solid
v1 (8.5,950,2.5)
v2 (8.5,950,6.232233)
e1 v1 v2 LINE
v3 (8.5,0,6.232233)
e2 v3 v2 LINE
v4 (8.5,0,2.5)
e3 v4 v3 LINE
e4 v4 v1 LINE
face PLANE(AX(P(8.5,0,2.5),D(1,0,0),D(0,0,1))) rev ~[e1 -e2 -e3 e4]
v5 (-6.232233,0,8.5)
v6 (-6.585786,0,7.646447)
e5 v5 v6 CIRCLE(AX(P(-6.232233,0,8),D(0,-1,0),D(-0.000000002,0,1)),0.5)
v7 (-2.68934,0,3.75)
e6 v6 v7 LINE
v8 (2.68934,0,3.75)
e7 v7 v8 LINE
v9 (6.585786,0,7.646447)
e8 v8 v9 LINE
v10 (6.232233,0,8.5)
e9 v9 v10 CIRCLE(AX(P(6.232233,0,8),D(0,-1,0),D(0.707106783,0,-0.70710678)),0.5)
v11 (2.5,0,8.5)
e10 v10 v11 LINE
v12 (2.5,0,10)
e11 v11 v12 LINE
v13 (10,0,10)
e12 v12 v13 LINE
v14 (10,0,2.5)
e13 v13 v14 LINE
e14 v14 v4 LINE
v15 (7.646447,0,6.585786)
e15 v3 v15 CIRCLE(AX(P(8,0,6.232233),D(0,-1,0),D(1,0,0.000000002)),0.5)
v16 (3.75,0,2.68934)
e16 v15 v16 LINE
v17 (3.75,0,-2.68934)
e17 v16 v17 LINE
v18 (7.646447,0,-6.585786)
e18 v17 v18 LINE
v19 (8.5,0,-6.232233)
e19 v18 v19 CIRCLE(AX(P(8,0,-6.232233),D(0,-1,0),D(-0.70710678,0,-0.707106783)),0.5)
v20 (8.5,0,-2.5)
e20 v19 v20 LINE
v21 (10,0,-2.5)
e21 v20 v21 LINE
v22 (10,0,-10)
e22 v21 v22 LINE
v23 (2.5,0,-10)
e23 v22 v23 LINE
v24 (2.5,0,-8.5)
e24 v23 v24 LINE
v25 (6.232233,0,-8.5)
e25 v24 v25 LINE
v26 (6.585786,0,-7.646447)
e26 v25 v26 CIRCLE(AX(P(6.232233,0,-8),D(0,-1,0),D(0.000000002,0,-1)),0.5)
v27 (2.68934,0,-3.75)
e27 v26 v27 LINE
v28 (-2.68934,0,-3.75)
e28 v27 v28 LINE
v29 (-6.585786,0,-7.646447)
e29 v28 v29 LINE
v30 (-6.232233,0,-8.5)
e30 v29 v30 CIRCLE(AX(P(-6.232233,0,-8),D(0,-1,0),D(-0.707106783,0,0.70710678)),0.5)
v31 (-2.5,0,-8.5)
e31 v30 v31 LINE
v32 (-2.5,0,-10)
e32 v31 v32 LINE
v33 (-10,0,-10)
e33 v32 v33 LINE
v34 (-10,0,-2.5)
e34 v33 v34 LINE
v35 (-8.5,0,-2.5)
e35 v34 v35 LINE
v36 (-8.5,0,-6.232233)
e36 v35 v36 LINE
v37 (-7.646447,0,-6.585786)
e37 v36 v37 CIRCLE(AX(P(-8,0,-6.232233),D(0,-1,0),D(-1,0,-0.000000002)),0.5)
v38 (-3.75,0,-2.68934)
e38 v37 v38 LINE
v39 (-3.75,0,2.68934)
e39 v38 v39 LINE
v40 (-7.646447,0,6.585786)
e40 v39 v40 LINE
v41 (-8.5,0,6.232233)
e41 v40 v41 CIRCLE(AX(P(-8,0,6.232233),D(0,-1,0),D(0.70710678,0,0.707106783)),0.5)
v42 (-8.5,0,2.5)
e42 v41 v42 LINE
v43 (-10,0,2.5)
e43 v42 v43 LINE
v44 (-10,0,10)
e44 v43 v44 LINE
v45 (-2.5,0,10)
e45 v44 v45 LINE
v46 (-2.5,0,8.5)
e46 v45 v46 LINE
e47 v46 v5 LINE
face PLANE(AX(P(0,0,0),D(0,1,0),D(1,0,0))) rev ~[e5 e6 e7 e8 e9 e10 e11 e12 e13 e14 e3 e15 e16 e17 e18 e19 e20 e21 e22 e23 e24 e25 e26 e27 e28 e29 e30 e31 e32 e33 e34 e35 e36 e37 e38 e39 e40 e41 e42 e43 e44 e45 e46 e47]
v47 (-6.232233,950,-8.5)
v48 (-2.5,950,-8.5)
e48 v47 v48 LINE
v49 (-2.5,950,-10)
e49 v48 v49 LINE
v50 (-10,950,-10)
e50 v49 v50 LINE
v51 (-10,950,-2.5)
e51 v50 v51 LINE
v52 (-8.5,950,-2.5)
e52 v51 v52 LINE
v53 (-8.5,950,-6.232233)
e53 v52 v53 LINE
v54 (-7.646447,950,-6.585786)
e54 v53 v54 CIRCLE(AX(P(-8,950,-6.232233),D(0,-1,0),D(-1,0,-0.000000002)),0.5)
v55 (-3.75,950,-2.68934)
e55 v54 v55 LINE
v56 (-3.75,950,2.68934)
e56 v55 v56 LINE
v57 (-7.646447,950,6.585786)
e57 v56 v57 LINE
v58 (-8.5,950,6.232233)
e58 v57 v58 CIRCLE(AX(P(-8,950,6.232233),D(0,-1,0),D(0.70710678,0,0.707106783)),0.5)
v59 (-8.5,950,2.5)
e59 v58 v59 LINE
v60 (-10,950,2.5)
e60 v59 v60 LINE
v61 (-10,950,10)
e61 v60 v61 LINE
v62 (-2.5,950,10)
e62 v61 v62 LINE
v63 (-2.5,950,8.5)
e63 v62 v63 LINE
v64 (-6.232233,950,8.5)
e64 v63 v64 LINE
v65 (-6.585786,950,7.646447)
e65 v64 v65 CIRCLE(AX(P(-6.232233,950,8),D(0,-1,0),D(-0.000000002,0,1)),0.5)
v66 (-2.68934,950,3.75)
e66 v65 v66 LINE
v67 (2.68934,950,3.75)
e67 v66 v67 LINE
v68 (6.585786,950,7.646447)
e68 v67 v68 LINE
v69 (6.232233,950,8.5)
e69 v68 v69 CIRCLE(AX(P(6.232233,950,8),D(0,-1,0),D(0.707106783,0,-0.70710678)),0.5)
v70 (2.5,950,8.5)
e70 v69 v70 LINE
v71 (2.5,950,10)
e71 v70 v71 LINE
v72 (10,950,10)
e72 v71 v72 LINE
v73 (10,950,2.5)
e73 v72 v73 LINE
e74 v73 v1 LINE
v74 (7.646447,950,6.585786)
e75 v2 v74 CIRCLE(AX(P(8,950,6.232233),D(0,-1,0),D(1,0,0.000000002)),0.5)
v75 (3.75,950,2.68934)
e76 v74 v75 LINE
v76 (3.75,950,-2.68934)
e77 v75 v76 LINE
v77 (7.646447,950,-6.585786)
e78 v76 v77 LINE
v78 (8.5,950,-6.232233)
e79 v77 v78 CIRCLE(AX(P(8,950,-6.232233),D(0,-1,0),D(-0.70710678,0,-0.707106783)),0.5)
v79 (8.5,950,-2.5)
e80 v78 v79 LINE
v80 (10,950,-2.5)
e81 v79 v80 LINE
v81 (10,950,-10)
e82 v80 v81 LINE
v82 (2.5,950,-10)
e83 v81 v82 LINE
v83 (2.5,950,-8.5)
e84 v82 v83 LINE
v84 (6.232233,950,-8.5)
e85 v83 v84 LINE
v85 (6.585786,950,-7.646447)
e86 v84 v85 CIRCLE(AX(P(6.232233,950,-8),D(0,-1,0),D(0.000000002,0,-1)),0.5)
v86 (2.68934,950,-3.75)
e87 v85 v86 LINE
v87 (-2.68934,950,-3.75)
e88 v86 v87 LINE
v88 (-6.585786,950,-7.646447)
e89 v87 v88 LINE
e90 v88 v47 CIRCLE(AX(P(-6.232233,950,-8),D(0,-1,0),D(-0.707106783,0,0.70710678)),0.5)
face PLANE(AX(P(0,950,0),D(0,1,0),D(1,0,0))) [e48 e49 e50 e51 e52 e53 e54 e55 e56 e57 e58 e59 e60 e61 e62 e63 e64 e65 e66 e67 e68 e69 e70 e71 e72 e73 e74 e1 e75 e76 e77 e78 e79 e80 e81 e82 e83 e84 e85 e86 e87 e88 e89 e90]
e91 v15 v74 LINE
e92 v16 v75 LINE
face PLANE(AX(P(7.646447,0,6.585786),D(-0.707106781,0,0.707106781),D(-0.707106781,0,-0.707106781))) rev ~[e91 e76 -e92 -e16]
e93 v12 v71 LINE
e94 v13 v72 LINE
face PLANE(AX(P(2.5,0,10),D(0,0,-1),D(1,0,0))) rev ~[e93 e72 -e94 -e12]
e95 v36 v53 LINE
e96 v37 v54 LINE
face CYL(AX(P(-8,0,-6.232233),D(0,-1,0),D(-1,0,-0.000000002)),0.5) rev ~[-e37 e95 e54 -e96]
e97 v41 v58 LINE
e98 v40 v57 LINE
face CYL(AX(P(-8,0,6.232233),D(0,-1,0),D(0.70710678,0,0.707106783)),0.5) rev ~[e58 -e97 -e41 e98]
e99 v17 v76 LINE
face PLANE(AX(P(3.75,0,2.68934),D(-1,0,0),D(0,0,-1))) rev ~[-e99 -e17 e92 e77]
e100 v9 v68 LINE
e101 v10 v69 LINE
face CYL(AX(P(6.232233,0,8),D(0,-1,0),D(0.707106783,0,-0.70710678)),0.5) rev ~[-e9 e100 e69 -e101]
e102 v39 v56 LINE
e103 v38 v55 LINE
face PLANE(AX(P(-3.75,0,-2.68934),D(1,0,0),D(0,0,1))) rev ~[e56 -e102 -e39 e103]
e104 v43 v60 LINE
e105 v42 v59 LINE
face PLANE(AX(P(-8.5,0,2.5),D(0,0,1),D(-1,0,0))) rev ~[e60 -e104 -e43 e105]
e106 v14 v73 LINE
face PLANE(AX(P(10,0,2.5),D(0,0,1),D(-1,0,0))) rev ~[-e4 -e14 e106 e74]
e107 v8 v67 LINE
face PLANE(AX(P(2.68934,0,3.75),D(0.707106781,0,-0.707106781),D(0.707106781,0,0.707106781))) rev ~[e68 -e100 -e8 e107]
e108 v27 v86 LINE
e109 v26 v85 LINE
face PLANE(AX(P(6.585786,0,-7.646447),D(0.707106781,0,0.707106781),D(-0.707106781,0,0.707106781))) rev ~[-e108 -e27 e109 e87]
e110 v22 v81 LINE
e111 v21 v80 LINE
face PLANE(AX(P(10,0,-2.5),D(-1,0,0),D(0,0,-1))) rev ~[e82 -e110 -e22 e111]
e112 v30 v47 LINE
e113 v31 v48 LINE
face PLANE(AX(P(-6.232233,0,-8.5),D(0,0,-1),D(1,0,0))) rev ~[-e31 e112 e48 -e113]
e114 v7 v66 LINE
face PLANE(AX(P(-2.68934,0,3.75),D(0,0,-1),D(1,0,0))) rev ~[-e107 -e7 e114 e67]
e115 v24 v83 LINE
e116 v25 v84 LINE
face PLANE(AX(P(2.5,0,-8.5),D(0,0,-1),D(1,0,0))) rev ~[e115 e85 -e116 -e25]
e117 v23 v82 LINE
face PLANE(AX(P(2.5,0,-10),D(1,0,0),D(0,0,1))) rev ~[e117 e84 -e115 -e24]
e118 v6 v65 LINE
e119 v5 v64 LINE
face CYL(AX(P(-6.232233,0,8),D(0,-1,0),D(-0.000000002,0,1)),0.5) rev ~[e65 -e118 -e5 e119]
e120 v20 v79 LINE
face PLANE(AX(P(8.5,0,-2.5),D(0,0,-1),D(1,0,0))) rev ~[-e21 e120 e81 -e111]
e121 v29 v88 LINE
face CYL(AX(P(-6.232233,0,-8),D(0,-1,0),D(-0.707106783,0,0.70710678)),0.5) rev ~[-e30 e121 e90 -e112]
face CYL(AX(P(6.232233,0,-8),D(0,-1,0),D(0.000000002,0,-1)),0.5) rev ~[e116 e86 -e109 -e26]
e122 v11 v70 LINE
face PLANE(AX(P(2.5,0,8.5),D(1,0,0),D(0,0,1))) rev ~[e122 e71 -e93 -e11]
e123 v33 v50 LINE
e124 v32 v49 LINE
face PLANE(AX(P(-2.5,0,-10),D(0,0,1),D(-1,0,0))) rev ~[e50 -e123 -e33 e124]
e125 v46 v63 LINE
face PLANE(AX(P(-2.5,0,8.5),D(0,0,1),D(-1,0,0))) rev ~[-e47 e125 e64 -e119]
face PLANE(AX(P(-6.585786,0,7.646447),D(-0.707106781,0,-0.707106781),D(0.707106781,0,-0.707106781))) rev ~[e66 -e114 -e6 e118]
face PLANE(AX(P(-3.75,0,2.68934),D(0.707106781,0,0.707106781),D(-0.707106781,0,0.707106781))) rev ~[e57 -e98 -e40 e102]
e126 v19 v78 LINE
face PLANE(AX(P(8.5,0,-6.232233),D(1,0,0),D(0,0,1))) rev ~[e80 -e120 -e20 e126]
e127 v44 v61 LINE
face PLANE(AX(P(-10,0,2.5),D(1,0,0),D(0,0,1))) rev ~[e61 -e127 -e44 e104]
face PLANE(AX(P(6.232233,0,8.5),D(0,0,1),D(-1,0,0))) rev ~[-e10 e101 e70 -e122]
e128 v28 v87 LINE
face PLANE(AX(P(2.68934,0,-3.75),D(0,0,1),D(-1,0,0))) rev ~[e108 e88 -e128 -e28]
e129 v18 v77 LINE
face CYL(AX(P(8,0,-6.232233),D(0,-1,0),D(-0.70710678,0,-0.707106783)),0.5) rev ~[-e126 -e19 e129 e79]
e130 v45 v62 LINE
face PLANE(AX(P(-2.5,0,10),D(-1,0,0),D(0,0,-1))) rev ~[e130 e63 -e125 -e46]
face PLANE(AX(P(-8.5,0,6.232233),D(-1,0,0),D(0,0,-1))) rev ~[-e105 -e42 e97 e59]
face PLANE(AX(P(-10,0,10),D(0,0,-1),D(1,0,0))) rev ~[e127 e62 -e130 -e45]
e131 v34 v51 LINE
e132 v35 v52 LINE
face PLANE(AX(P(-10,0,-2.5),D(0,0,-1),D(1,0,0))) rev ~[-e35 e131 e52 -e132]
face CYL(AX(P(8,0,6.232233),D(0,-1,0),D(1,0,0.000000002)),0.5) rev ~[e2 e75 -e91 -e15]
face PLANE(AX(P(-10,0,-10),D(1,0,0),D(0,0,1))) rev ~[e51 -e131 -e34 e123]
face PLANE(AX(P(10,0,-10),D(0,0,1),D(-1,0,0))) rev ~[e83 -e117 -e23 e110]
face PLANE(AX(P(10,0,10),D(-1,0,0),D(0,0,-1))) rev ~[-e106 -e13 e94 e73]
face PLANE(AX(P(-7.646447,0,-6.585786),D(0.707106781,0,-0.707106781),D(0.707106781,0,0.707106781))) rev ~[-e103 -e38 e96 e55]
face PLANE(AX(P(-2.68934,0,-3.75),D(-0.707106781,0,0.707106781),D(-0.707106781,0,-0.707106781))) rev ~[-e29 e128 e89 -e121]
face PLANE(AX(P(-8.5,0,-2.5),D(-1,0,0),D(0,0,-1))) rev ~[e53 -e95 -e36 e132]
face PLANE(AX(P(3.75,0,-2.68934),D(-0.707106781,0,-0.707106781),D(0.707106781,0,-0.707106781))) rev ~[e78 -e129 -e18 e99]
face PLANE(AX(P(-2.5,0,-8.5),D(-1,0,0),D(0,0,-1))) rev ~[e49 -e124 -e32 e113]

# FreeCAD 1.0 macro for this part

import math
import FreeCAD as App
import Part
import Sketcher
from FreeCAD import Vector

doc = App.newDocument("Part")
params = doc.addObject("Spreadsheet::Sheet", "Params")
for row, (alias, value) in enumerate([
    ("sketch1_radius", "0.5 mm"),
    ("sketch1_width", "7.5 mm"),
    ("sketch1_width2", "1.5 mm"),
    ("pad1_length", "950 mm"),
], start=1):
    params.set(f"A{row}", alias)
    params.set(f"B{row}", "=" + value)
    params.setAlias(f"B{row}", alias)

body = doc.addObject("PartDesign::Body", "Body")

sketch1 = doc.addObject("Sketcher::SketchObject", "Sketch")
body.addObject(sketch1)
sketch1.AttachmentSupport = (doc.XZ_Plane, [""])
sketch1.MapMode = "FlatFace"
sketch1.addGeometry([
    Part.LineSegment(Vector(-10, 2.5, 0), Vector(-10, 10, 0)),
    Part.LineSegment(Vector(-10, 10, 0), Vector(-2.5, 10, 0)),
    Part.LineSegment(Vector(-2.5, 10, 0), Vector(-2.5, 8.5, 0)),
    Part.LineSegment(Vector(-2.5, 8.5, 0), Vector(-6.2, 8.5, 0)),
    Part.ArcOfCircle(Part.Circle(Vector(-6.2, 8, 0), Vector(0, 0, 1), 0.5), math.radians(90), math.radians(225)),
    Part.LineSegment(Vector(-6.6, 7.6, 0), Vector(-2.7, 3.8, 0)),
    Part.LineSegment(Vector(-2.7, 3.8, 0), Vector(2.7, 3.8, 0)),
    Part.LineSegment(Vector(2.7, 3.8, 0), Vector(6.6, 7.6, 0)),
    Part.ArcOfCircle(Part.Circle(Vector(6.2, 8, 0), Vector(0, 0, 1), 0.5), math.radians(-45), math.radians(90)),
    Part.LineSegment(Vector(6.2, 8.5, 0), Vector(2.5, 8.5, 0)),
    Part.LineSegment(Vector(2.5, 8.5, 0), Vector(2.5, 10, 0)),
    Part.LineSegment(Vector(2.5, 10, 0), Vector(10, 10, 0)),
    Part.LineSegment(Vector(10, 10, 0), Vector(10, 2.5, 0)),
    Part.LineSegment(Vector(10, 2.5, 0), Vector(8.5, 2.5, 0)),
    Part.LineSegment(Vector(8.5, 2.5, 0), Vector(8.5, 6.2, 0)),
    Part.ArcOfCircle(Part.Circle(Vector(8, 6.2, 0), Vector(0, 0, 1), 0.5), math.radians(0), math.radians(135)),
    Part.LineSegment(Vector(7.6, 6.6, 0), Vector(3.8, 2.7, 0)),
    Part.LineSegment(Vector(3.8, 2.7, 0), Vector(3.8, -2.7, 0)),
    Part.LineSegment(Vector(3.8, -2.7, 0), Vector(7.6, -6.6, 0)),
    Part.ArcOfCircle(Part.Circle(Vector(8, -6.2, 0), Vector(0, 0, 1), 0.5), math.radians(-135), math.radians(0)),
    Part.LineSegment(Vector(8.5, -6.2, 0), Vector(8.5, -2.5, 0)),
    Part.LineSegment(Vector(8.5, -2.5, 0), Vector(10, -2.5, 0)),
    Part.LineSegment(Vector(10, -2.5, 0), Vector(10, -10, 0)),
    Part.LineSegment(Vector(10, -10, 0), Vector(2.5, -10, 0)),
    Part.LineSegment(Vector(2.5, -10, 0), Vector(2.5, -8.5, 0)),
    Part.LineSegment(Vector(2.5, -8.5, 0), Vector(6.2, -8.5, 0)),
    Part.ArcOfCircle(Part.Circle(Vector(6.2, -8, 0), Vector(0, 0, 1), 0.5), math.radians(-90), math.radians(45)),
    Part.LineSegment(Vector(6.6, -7.6, 0), Vector(2.7, -3.8, 0)),
    Part.LineSegment(Vector(2.7, -3.8, 0), Vector(-2.7, -3.8, 0)),
    Part.LineSegment(Vector(-2.7, -3.8, 0), Vector(-6.6, -7.6, 0)),
    Part.ArcOfCircle(Part.Circle(Vector(-6.2, -8, 0), Vector(0, 0, 1), 0.5), math.radians(135), math.radians(270)),
    Part.LineSegment(Vector(-6.2, -8.5, 0), Vector(-2.5, -8.5, 0)),
    Part.LineSegment(Vector(-2.5, -8.5, 0), Vector(-2.5, -10, 0)),
    Part.LineSegment(Vector(-2.5, -10, 0), Vector(-10, -10, 0)),
    Part.LineSegment(Vector(-10, -10, 0), Vector(-10, -2.5, 0)),
    Part.LineSegment(Vector(-10, -2.5, 0), Vector(-8.5, -2.5, 0)),
    Part.LineSegment(Vector(-8.5, -2.5, 0), Vector(-8.5, -6.2, 0)),
    Part.ArcOfCircle(Part.Circle(Vector(-8, -6.2, 0), Vector(0, 0, 1), 0.5), math.radians(-180), math.radians(-45)),
    Part.LineSegment(Vector(-7.6, -6.6, 0), Vector(-3.8, -2.7, 0)),
    Part.LineSegment(Vector(-3.8, -2.7, 0), Vector(-3.8, 2.7, 0)),
    Part.LineSegment(Vector(-3.8, 2.7, 0), Vector(-7.6, 6.6, 0)),
    Part.ArcOfCircle(Part.Circle(Vector(-8, 6.2, 0), Vector(0, 0, 1), 0.5), math.radians(45), math.radians(180)),
    Part.LineSegment(Vector(-8.5, 6.2, 0), Vector(-8.5, 2.5, 0)),
    Part.LineSegment(Vector(-8.5, 2.5, 0), Vector(-10, 2.5, 0)),
], False)
sketch1.addConstraint([
    Sketcher.Constraint("Coincident", 0, 2, 1, 1),
    Sketcher.Constraint("Coincident", 1, 2, 2, 1),
    Sketcher.Constraint("Coincident", 2, 2, 3, 1),
    Sketcher.Constraint("Tangent", 3, 2, 4, 1),
    Sketcher.Constraint("Tangent", 4, 2, 5, 1),
    Sketcher.Constraint("Coincident", 5, 2, 6, 1),
    Sketcher.Constraint("Coincident", 6, 2, 7, 1),
    Sketcher.Constraint("Tangent", 7, 2, 8, 1),
    Sketcher.Constraint("Tangent", 8, 2, 9, 1),
    Sketcher.Constraint("Coincident", 9, 2, 10, 1),
    Sketcher.Constraint("Coincident", 10, 2, 11, 1),
    Sketcher.Constraint("Coincident", 11, 2, 12, 1),
    Sketcher.Constraint("Coincident", 12, 2, 13, 1),
    Sketcher.Constraint("Coincident", 13, 2, 14, 1),
    Sketcher.Constraint("Tangent", 14, 2, 15, 1),
    Sketcher.Constraint("Tangent", 15, 2, 16, 1),
    Sketcher.Constraint("Coincident", 16, 2, 17, 1),
    Sketcher.Constraint("Coincident", 17, 2, 18, 1),
    Sketcher.Constraint("Tangent", 18, 2, 19, 1),
    Sketcher.Constraint("Tangent", 19, 2, 20, 1),
    Sketcher.Constraint("Coincident", 20, 2, 21, 1),
    Sketcher.Constraint("Coincident", 21, 2, 22, 1),
    Sketcher.Constraint("Coincident", 22, 2, 23, 1),
    Sketcher.Constraint("Coincident", 23, 2, 24, 1),
    Sketcher.Constraint("Coincident", 24, 2, 25, 1),
    Sketcher.Constraint("Tangent", 25, 2, 26, 1),
    Sketcher.Constraint("Tangent", 26, 2, 27, 1),
    Sketcher.Constraint("Coincident", 27, 2, 28, 1),
    Sketcher.Constraint("Coincident", 28, 2, 29, 1),
    Sketcher.Constraint("Tangent", 29, 2, 30, 1),
    Sketcher.Constraint("Tangent", 30, 2, 31, 1),
    Sketcher.Constraint("Coincident", 31, 2, 32, 1),
    Sketcher.Constraint("Coincident", 32, 2, 33, 1),
    Sketcher.Constraint("Coincident", 33, 2, 34, 1),
    Sketcher.Constraint("Coincident", 34, 2, 35, 1),
    Sketcher.Constraint("Coincident", 35, 2, 36, 1),
    Sketcher.Constraint("Tangent", 36, 2, 37, 1),
    Sketcher.Constraint("Tangent", 37, 2, 38, 1),
    Sketcher.Constraint("Coincident", 38, 2, 39, 1),
    Sketcher.Constraint("Coincident", 39, 2, 40, 1),
    Sketcher.Constraint("Tangent", 40, 2, 41, 1),
    Sketcher.Constraint("Tangent", 41, 2, 42, 1),
    Sketcher.Constraint("Coincident", 42, 2, 43, 1),
    Sketcher.Constraint("Coincident", 43, 2, 0, 1),
    Sketcher.Constraint("Vertical", 0),
    Sketcher.Constraint("Horizontal", 1),
    Sketcher.Constraint("Vertical", 2),
    Sketcher.Constraint("Horizontal", 3),
    Sketcher.Constraint("Horizontal", 6),
    Sketcher.Constraint("Horizontal", 9),
    Sketcher.Constraint("Vertical", 10),
    Sketcher.Constraint("Horizontal", 11),
    Sketcher.Constraint("Vertical", 12),
    Sketcher.Constraint("Horizontal", 13),
    Sketcher.Constraint("Vertical", 14),
    Sketcher.Constraint("Vertical", 17),
    Sketcher.Constraint("Vertical", 20),
    Sketcher.Constraint("Horizontal", 21),
    Sketcher.Constraint("Vertical", 22),
    Sketcher.Constraint("Horizontal", 23),
    Sketcher.Constraint("Vertical", 24),
    Sketcher.Constraint("Horizontal", 25),
    Sketcher.Constraint("Horizontal", 28),
    Sketcher.Constraint("Horizontal", 31),
    Sketcher.Constraint("Vertical", 32),
    Sketcher.Constraint("Horizontal", 33),
    Sketcher.Constraint("Vertical", 34),
    Sketcher.Constraint("Horizontal", 35),
    Sketcher.Constraint("Vertical", 36),
    Sketcher.Constraint("Vertical", 39),
    Sketcher.Constraint("Vertical", 42),
    Sketcher.Constraint("Horizontal", 43),
    Sketcher.Constraint("Equal", 4, 8),
    Sketcher.Constraint("Equal", 8, 15),
    Sketcher.Constraint("Equal", 15, 19),
    Sketcher.Constraint("Equal", 19, 26),
    Sketcher.Constraint("Equal", 26, 30),
    Sketcher.Constraint("Equal", 30, 37),
    Sketcher.Constraint("Equal", 37, 41),
    Sketcher.Constraint("Symmetric", 4, 3, 26, 3, -1, 1),
    Sketcher.Constraint("Symmetric", 8, 3, 30, 3, -1, 1),
    Sketcher.Constraint("Symmetric", 15, 3, 37, 3, -1, 1),
    Sketcher.Constraint("Symmetric", 19, 3, 41, 3, -1, 1),
    Sketcher.Constraint("Symmetric", 0, 2, 22, 2, -1, 1),
    Sketcher.Constraint("Symmetric", 5, 2, 27, 2, -1, 1),
    Sketcher.Constraint("Symmetric", 10, 2, 32, 2, -1, 1),
    Sketcher.Constraint("Symmetric", 12, 2, 34, 2, -1, 1),
    Sketcher.Constraint("Symmetric", 16, 2, 38, 2, -1, 1),
    Sketcher.Constraint("Symmetric", 4, 3, 8, 3, -2),
    Sketcher.Constraint("Symmetric", 19, 3, 37, 3, -2),
    Sketcher.Constraint("Symmetric", 1, 2, 10, 2, -2),
    Sketcher.Constraint("Symmetric", 21, 2, 34, 2, -2),
    Sketcher.Constraint("Perpendicular", 5, 7),
    Sketcher.Constraint("Parallel", 7, 16),
    Sketcher.Constraint("Perpendicular", 16, 18),
    Sketcher.Constraint("Perpendicular", 27, 29),
    Sketcher.Constraint("Perpendicular", 38, 40),
    Sketcher.Constraint("Horizontal", 4, 2, 7, 2),
    Sketcher.Constraint("Horizontal", 13, 2, 42, 2),
    Sketcher.Constraint("Vertical", 10, 2, 23, 2),
    Sketcher.Constraint("Equal", 33, 0),
    Sketcher.Constraint("Equal", 43, 2),
    Sketcher.Constraint("Equal", 31, 14),
    Sketcher.Constraint("Equal", 28, 17),
    Sketcher.Constraint("Equal", 7, 16),
    Sketcher.Constraint("Radius", 4, 0.5),
    Sketcher.Constraint("DistanceX", 1, 1, 1, 2, 7.5),
    Sketcher.Constraint("DistanceX", 13, 2, 13, 1, 1.5),
    Sketcher.Constraint("DistanceY", -1, 1, 4, 3, 8.0),
    Sketcher.Constraint("DistanceY", -1, 1, 5, 2, 3.75),
    Sketcher.Constraint("DistanceX", 6, 1, 6, 2, 5.37868),
])
sketch1.setExpression("Constraints[105]", "Params.sketch1_radius")
sketch1.setExpression("Constraints[106]", "Params.sketch1_width")
sketch1.setExpression("Constraints[107]", "Params.sketch1_width2")
pad1 = doc.addObject("PartDesign::Pad", "Pad")
body.addObject(pad1)
pad1.Profile = sketch1
pad1.setExpression("Length", "Params.pad1_length")
pad1.Reversed = True

doc.recompute()
